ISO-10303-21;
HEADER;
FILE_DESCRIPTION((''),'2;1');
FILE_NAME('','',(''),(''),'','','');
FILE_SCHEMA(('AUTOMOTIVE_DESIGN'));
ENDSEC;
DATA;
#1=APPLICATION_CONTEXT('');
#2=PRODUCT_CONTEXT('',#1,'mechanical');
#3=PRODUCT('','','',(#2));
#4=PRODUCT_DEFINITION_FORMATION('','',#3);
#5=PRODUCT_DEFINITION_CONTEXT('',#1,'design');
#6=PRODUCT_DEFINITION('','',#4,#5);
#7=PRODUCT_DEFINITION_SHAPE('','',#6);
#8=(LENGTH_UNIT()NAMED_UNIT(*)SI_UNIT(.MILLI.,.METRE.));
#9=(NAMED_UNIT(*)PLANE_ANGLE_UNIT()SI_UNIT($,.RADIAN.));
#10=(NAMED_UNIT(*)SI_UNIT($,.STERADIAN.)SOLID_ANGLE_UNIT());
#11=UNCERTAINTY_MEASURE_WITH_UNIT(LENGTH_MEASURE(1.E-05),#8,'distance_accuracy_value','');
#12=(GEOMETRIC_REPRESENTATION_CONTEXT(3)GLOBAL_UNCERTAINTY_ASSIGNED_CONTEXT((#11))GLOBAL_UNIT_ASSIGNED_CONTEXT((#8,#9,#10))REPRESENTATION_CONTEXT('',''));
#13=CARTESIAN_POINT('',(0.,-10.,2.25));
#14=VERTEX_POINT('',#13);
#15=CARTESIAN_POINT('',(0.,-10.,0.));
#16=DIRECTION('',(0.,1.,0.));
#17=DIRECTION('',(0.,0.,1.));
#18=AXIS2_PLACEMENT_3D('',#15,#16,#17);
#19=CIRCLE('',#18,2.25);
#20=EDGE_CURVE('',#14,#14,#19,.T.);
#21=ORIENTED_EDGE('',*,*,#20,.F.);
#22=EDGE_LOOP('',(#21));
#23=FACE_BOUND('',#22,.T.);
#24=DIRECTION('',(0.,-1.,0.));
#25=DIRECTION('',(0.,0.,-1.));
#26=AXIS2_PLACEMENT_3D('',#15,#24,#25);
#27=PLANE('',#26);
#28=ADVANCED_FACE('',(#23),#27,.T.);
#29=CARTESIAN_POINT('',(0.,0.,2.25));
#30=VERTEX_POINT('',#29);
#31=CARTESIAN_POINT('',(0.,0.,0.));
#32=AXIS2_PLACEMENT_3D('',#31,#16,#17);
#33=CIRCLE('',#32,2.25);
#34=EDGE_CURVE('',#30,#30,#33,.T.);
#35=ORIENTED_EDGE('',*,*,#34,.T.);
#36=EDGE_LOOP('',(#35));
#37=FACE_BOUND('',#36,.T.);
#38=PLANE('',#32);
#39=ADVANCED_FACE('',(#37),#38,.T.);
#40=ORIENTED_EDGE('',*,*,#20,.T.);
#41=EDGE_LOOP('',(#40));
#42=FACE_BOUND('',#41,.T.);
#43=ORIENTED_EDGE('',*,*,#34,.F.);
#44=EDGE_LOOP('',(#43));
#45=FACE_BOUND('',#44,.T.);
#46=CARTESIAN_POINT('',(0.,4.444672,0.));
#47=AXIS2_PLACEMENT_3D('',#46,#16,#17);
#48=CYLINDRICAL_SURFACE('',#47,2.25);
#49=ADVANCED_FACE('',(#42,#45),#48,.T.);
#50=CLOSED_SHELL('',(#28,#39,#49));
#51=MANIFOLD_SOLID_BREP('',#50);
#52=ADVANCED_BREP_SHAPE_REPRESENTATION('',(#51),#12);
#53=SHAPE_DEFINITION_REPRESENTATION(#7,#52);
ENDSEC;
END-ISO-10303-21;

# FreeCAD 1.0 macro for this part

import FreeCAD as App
import Part
import Sketcher

V = App.Vector
Q = App.Units.Quantity


def add_polygon(sketch, points):
    """Adds a closed chain of lines whose ends are joined by coincident constraints."""
    first, n = sketch.GeometryCount, len(points)
    for a, b in zip(points, points[1:] + points[:1]):
        sketch.addGeometry(Part.LineSegment(App.Vector(*a, 0), App.Vector(*b, 0)), False)
    for i in range(n):
        sketch.addConstraint(Sketcher.Constraint("Coincident", first + i, 2, first + (i + 1) % n, 1))

doc = App.newDocument("Part")
body = doc.addObject("PartDesign::Body", "Body")

# Sketch on YZ plane
sketch1 = body.newObject("Sketcher::SketchObject", "Sketch")
sketch1.AttachmentSupport = (doc.getObject("YZ_Plane"), [""])
sketch1.MapMode = "FlatFace"
add_polygon(sketch1, [(0, 2.2), (-10, 2.2), (-10, 0), (0, 0)])  # lines 0-3
sketch1.addConstraint(Sketcher.Constraint("Horizontal", 0))
sketch1.addConstraint(Sketcher.Constraint("Vertical", 1))
sketch1.addConstraint(Sketcher.Constraint("Horizontal", 2))
sketch1.addConstraint(Sketcher.Constraint("Vertical", 3))
sketch1.addConstraint(Sketcher.Constraint("Coincident", 2, 2, -1, 1))
sketch1.addConstraint(Sketcher.Constraint("DistanceX", 0, 2, 0, 1, Q("10 mm")))
sketch1.addConstraint(Sketcher.Constraint("DistanceY", 1, 2, 1, 1, Q("2.25 mm")))
revolution = body.newObject("PartDesign::Revolution", "Revolution")
revolution.Profile = sketch1
revolution.ReferenceAxis = (sketch1, ["H_Axis"])
revolution.Angle = 360

doc.recompute()
